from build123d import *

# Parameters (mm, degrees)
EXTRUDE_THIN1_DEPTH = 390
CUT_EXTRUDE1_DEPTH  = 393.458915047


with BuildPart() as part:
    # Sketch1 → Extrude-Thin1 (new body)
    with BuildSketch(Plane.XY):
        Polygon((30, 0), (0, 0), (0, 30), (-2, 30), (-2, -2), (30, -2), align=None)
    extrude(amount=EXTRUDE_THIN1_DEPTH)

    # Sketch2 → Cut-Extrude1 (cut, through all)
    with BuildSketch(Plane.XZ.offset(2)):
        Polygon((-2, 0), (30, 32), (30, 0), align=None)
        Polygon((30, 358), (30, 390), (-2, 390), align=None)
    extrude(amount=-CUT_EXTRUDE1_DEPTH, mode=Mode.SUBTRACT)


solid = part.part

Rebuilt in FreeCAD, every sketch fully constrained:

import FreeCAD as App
import Part
import Sketcher

V = App.Vector

doc = App.newDocument("Part")
body = doc.addObject("PartDesign::Body", "Body")

sketch1 = body.newObject("Sketcher::SketchObject", "Sketch")
sketch1.AttachmentSupport = (doc.getObject("XY_Plane"), [""])
sketch1.MapMode = "FlatFace"
sketch1.addGeometry([
    Part.LineSegment(V(30, 0, 0), V(0, 0, 0)),
    Part.LineSegment(V(0, 0, 0), V(0, 30, 0)),
    Part.LineSegment(V(0, 30, 0), V(-2, 30, 0)),
    Part.LineSegment(V(-2, 30, 0), V(-2, -2, 0)),
    Part.LineSegment(V(-2, -2, 0), V(30, -2, 0)),
    Part.LineSegment(V(30, -2, 0), V(30, 0, 0)),
], False)
sketch1.addConstraint([
    Sketcher.Constraint("Coincident", 0, 2, 1, 1),
    Sketcher.Constraint("Coincident", 1, 2, 2, 1),
    Sketcher.Constraint("Coincident", 2, 2, 3, 1),
    Sketcher.Constraint("Coincident", 3, 2, 4, 1),
    Sketcher.Constraint("Coincident", 4, 2, 5, 1),
    Sketcher.Constraint("Coincident", 5, 2, 0, 1),
    Sketcher.Constraint("Horizontal", 0),
    Sketcher.Constraint("Vertical", 1),
    Sketcher.Constraint("Horizontal", 2),
    Sketcher.Constraint("Vertical", 3),
    Sketcher.Constraint("Horizontal", 4),
    Sketcher.Constraint("Vertical", 5),
    Sketcher.Constraint("Coincident", 0, 2, -1, 1),
    Sketcher.Constraint("Equal", 0, 1),
    Sketcher.Constraint("Equal", 4, 3),
    Sketcher.Constraint("DistanceX", 0, 2, 0, 1, 30.0),
    Sketcher.Constraint("DistanceX", 2, 2, 2, 1, 2.0),
])
pad1 = body.newObject("PartDesign::Pad", "Pad")
pad1.Profile = sketch1
pad1.Length = 390

sketch2 = body.newObject("Sketcher::SketchObject", "Sketch001")
sketch2.AttachmentSupport = (doc.getObject("XZ_Plane"), [""])
sketch2.MapMode = "FlatFace"
sketch2.AttachmentOffset = App.Placement(V(0, 0, 2), App.Rotation())
sketch2.addGeometry([
    Part.LineSegment(V(30, 32, 0), V(-2, 0, 0)),
    Part.LineSegment(V(-2, 0, 0), V(30, 0, 0)),
    Part.LineSegment(V(30, 0, 0), V(30, 32, 0)),
    Part.LineSegment(V(30, 358, 0), V(30, 390, 0)),
    Part.LineSegment(V(30, 390, 0), V(-2, 390, 0)),
    Part.LineSegment(V(-2, 390, 0), V(30, 358, 0)),
], False)
sketch2.addConstraint([
    Sketcher.Constraint("Coincident", 0, 2, 1, 1),
    Sketcher.Constraint("Coincident", 1, 2, 2, 1),
    Sketcher.Constraint("Coincident", 2, 2, 0, 1),
    Sketcher.Constraint("Coincident", 3, 2, 4, 1),
    Sketcher.Constraint("Coincident", 4, 2, 5, 1),
    Sketcher.Constraint("Coincident", 5, 2, 3, 1),
    Sketcher.Constraint("Horizontal", 1),
    Sketcher.Constraint("Vertical", 2),
    Sketcher.Constraint("Vertical", 3),
    Sketcher.Constraint("Horizontal", 4),
    Sketcher.Constraint("PointOnObject", 0, 2, -1),
    Sketcher.Constraint("Perpendicular", 0, 5),
    Sketcher.Constraint("Vertical", 2, 2, 3, 2),
    Sketcher.Constraint("Vertical", 0, 2, 4, 2),
    Sketcher.Constraint("Equal", 4, 2),
    Sketcher.Constraint("DistanceX", 1, 1, 1, 2, 32.0),
    Sketcher.Constraint("DistanceX", 0, 2, -1, 1, 2.0),
    Sketcher.Constraint("DistanceY", -1, 1, 3, 2, 390.0),
])
pocket1 = body.newObject("PartDesign::Pocket", "Pocket")
pocket1.Profile = sketch2
pocket1.Type = "ThroughAll"

doc.recompute()
